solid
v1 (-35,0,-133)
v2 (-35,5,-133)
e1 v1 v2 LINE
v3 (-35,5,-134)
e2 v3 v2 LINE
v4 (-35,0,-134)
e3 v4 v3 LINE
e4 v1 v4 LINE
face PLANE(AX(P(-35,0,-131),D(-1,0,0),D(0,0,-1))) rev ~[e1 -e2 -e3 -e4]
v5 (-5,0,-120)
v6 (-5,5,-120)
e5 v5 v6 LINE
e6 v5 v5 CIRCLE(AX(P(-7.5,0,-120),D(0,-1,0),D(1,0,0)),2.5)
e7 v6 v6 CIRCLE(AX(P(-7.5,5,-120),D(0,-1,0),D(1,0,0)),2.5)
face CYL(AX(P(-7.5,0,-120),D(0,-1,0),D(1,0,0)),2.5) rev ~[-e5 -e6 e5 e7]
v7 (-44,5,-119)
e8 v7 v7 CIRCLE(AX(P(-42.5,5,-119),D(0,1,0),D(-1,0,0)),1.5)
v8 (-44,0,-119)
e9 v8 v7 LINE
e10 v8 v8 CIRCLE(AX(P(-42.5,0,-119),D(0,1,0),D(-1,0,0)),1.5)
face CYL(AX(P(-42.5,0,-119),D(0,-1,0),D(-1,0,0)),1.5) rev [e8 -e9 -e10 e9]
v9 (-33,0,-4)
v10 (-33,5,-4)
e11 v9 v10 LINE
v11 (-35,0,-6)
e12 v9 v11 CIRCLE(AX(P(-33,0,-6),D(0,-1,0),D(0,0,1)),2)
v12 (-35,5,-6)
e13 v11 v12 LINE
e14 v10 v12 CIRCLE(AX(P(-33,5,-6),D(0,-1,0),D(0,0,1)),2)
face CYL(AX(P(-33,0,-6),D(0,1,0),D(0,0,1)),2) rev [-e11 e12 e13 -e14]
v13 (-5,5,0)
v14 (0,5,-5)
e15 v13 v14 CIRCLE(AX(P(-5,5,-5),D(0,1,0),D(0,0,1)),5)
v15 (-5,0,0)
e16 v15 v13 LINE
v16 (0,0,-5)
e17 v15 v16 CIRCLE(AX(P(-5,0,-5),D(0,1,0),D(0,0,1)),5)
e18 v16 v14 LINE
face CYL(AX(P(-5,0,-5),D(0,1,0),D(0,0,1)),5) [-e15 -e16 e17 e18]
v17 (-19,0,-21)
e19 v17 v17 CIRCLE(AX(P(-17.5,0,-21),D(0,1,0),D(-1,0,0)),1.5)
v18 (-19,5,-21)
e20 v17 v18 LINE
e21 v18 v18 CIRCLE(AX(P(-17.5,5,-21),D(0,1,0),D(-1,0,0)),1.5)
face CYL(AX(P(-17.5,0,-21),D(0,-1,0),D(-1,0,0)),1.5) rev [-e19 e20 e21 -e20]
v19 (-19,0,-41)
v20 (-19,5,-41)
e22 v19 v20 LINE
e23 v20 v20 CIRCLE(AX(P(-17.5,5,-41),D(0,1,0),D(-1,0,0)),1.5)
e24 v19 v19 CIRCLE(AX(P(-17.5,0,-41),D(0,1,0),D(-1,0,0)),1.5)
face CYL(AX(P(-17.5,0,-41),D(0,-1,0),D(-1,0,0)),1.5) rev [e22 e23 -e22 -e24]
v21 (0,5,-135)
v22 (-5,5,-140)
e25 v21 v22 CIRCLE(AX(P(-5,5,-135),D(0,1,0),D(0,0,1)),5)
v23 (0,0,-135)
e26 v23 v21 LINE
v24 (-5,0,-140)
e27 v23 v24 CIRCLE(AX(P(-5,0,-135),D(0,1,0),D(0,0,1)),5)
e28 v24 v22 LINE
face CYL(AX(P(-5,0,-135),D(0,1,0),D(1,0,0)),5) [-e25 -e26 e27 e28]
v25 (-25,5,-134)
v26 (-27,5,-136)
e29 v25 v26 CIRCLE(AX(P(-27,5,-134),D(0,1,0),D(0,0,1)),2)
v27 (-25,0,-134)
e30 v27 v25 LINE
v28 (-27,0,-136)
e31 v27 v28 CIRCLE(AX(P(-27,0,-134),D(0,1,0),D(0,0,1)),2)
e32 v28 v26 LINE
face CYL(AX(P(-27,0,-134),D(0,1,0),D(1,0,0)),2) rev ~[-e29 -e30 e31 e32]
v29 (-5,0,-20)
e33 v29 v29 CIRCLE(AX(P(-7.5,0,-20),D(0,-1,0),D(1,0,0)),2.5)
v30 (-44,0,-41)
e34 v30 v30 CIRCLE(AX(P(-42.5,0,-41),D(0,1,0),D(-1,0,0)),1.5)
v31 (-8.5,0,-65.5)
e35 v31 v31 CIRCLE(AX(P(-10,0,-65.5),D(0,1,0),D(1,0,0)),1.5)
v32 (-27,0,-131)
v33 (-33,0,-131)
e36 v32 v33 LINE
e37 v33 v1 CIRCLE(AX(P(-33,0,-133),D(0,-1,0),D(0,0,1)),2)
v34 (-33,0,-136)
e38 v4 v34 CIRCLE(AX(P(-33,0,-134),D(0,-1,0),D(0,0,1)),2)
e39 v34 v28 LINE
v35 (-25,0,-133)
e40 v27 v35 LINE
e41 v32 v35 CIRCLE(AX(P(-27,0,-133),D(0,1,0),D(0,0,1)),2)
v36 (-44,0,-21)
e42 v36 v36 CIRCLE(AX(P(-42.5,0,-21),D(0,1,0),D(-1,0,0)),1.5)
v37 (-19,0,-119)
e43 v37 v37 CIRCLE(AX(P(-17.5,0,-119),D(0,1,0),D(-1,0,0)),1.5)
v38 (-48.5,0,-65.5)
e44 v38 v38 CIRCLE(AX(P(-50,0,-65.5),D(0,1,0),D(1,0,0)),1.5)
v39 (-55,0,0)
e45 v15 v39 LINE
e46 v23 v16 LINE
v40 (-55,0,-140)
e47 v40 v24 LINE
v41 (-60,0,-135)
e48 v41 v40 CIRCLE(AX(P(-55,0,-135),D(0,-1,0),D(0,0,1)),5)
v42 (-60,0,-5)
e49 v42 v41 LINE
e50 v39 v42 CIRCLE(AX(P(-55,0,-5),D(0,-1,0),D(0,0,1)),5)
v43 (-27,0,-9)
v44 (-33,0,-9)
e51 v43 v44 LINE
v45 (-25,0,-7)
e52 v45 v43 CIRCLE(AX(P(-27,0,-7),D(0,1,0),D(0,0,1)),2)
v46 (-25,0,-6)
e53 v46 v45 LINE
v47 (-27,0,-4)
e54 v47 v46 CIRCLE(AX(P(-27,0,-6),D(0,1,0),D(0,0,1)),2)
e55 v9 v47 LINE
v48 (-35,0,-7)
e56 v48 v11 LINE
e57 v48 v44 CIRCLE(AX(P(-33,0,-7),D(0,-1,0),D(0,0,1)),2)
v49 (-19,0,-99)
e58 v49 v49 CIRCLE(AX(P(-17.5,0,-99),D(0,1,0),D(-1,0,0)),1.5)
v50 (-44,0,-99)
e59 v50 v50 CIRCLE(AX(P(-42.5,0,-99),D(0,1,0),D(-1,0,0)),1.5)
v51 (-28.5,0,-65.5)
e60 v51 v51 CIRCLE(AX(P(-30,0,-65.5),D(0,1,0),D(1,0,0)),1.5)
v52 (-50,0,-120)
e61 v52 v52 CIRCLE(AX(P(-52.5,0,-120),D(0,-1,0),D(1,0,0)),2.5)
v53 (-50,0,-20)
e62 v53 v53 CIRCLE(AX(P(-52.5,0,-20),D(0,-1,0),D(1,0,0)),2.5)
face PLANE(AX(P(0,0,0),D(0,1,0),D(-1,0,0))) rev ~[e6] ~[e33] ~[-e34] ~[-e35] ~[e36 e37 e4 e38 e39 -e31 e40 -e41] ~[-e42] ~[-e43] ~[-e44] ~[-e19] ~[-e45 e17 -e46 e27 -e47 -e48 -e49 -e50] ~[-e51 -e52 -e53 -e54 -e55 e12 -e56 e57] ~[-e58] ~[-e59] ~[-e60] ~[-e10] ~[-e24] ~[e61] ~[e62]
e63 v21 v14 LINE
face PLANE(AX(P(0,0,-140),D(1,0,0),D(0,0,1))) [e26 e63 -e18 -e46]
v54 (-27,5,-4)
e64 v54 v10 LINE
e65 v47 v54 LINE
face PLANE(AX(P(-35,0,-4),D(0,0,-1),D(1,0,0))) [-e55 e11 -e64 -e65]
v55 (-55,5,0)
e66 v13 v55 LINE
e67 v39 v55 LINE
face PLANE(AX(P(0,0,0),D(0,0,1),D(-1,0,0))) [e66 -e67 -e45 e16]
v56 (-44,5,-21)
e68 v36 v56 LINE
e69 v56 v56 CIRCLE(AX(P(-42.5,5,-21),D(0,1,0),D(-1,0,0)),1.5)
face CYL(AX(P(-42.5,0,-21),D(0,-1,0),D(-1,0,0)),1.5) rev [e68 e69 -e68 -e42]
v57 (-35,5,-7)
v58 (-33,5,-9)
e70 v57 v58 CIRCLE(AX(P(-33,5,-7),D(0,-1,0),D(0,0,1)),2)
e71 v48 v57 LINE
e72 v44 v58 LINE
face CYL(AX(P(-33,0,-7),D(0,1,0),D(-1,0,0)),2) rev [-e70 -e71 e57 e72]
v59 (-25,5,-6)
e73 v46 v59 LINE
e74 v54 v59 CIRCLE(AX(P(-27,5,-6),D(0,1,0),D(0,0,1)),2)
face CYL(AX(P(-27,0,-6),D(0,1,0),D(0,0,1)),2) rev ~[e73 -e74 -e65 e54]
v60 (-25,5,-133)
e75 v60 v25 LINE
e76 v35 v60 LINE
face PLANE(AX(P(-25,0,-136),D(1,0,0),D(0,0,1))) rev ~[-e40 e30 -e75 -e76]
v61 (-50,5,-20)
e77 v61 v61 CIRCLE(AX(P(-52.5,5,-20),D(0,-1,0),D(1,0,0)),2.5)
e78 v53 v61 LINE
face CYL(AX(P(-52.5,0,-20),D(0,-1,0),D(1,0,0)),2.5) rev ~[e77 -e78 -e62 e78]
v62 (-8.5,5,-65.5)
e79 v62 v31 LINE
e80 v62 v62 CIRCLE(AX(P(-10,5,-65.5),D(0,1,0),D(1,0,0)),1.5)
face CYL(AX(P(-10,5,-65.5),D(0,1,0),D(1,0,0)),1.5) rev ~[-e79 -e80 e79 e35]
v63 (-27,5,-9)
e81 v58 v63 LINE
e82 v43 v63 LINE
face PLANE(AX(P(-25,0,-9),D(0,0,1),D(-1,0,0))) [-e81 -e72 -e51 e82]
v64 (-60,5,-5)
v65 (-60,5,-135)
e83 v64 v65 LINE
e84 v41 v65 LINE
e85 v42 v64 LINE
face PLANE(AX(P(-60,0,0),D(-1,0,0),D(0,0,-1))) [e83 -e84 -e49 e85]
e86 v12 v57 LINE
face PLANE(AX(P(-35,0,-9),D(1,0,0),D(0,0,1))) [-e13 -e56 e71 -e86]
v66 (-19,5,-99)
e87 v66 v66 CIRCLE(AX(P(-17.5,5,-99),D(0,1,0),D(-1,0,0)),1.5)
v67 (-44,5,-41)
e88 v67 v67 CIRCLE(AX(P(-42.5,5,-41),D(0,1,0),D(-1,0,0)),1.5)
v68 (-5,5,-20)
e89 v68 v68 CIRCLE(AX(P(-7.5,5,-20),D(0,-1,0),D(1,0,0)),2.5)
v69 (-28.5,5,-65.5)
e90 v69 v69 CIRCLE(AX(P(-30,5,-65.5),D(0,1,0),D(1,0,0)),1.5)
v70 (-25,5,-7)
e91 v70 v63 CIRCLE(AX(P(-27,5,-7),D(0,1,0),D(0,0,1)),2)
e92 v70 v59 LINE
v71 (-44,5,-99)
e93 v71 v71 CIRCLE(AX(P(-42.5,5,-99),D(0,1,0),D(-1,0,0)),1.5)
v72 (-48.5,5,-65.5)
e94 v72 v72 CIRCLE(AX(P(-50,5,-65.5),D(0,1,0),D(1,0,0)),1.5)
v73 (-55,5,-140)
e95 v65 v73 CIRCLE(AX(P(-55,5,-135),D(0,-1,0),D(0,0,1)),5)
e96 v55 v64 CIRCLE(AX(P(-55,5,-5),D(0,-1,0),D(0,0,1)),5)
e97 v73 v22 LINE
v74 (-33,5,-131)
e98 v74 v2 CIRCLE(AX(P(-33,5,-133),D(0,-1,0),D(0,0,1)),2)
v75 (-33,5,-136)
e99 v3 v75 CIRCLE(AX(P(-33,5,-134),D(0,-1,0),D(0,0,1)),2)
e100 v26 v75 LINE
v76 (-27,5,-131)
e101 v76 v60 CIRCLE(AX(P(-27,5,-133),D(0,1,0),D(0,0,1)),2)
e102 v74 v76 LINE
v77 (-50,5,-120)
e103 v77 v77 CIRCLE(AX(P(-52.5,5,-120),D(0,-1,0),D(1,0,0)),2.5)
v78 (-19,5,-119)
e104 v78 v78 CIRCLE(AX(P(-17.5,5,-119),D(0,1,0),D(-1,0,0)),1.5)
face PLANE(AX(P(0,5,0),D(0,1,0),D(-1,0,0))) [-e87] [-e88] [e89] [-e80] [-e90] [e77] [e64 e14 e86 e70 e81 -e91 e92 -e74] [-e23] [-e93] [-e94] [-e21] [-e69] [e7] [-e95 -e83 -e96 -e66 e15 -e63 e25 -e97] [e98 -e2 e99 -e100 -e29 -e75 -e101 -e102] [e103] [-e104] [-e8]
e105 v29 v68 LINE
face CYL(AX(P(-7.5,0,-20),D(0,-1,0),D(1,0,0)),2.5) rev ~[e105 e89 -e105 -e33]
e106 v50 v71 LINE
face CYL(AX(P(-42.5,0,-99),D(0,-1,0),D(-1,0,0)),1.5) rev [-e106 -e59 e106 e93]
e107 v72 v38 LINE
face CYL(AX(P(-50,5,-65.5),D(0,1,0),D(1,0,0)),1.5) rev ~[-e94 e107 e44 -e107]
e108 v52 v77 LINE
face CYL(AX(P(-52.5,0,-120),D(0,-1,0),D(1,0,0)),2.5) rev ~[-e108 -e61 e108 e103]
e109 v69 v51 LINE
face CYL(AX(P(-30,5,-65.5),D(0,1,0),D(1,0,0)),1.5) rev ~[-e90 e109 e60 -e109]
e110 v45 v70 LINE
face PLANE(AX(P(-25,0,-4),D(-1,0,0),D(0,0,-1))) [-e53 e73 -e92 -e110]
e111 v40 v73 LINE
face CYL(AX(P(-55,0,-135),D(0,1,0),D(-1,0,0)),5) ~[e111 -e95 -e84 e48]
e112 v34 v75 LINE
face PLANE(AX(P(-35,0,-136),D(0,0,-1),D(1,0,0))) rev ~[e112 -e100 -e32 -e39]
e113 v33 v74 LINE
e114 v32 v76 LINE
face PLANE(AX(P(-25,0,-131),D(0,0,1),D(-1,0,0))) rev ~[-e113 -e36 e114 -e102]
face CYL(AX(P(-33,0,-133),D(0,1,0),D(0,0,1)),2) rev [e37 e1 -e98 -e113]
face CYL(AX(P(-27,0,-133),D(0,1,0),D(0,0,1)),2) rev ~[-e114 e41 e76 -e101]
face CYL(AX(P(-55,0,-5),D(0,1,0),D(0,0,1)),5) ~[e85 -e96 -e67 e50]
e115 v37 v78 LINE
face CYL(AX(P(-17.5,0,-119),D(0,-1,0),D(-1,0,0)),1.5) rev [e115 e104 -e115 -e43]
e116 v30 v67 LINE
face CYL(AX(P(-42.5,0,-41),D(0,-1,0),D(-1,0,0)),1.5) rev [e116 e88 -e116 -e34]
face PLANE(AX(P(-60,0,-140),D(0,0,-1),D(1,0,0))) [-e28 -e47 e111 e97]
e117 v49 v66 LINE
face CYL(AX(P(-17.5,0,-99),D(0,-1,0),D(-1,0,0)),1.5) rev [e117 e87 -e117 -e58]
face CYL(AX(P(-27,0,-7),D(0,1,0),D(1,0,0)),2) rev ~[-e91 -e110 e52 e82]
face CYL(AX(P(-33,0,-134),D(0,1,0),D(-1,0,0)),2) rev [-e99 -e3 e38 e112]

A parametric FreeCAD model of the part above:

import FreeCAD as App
import Part
import Sketcher


def edges_at(feature, points):
    """Names of the edges that pass closest to the given points."""
    edges = feature.Shape.Edges
    near = lambda p: min(range(len(edges)), key=lambda i: edges[i].distToShape(Part.Vertex(*p))[0])
    return sorted({f"Edge{near(p) + 1}" for p in points})

doc = App.newDocument("Part")
body = doc.addObject("PartDesign::Body", "Body")

sketch1 = body.newObject("Sketcher::SketchObject", "Sketch")
sketch1.AttachmentSupport = (doc.getObject("XZ_Plane"), [""])
sketch1.MapMode = "FlatFace"
sketch1.addGeometry([
    Part.LineSegment(App.Vector(-60, 0, 0), App.Vector(0, 0, 0)),
    Part.LineSegment(App.Vector(0, 0, 0), App.Vector(0, -140, 0)),
    Part.LineSegment(App.Vector(0, -140, 0), App.Vector(-60, -140, 0)),
    Part.LineSegment(App.Vector(-60, -140, 0), App.Vector(-60, 0, 0)),
    Part.Circle(App.Vector(-17.5, -119, 0), App.Vector(0, 0, 1), 1.5),
    Part.Circle(App.Vector(-17.5, -99, 0), App.Vector(0, 0, 1), 1.5),
    Part.Circle(App.Vector(-42.5, -119, 0), App.Vector(0, 0, 1), 1.5),
    Part.Circle(App.Vector(-42.5, -99, 0), App.Vector(0, 0, 1), 1.5),
    Part.Circle(App.Vector(-17.5, -41, 0), App.Vector(0, 0, 1), 1.5),
    Part.Circle(App.Vector(-17.5, -21, 0), App.Vector(0, 0, 1), 1.5),
    Part.Circle(App.Vector(-42.5, -41, 0), App.Vector(0, 0, 1), 1.5),
    Part.Circle(App.Vector(-42.5, -21, 0), App.Vector(0, 0, 1), 1.5),
], False)
sketch1.addConstraint([
    Sketcher.Constraint("Coincident", 0, 2, 1, 1),
    Sketcher.Constraint("Coincident", 1, 2, 2, 1),
    Sketcher.Constraint("Coincident", 2, 2, 3, 1),
    Sketcher.Constraint("Coincident", 3, 2, 0, 1),
    Sketcher.Constraint("Horizontal", 0),
    Sketcher.Constraint("Vertical", 1),
    Sketcher.Constraint("Horizontal", 2),
    Sketcher.Constraint("Vertical", 3),
    Sketcher.Constraint("Coincident", 0, 2, -1, 1),
    Sketcher.Constraint("Equal", 4, 5),
    Sketcher.Constraint("Equal", 5, 6),
    Sketcher.Constraint("Equal", 6, 7),
    Sketcher.Constraint("Equal", 7, 8),
    Sketcher.Constraint("Equal", 8, 9),
    Sketcher.Constraint("Equal", 9, 10),
    Sketcher.Constraint("Equal", 10, 11),
    Sketcher.Constraint("Horizontal", 4, 3, 6, 3),
    Sketcher.Constraint("Horizontal", 5, 3, 7, 3),
    Sketcher.Constraint("Horizontal", 8, 3, 10, 3),
    Sketcher.Constraint("Horizontal", 9, 3, 11, 3),
    Sketcher.Constraint("Vertical", 4, 3, 5, 3),
    Sketcher.Constraint("Vertical", 6, 3, 7, 3),
    Sketcher.Constraint("Vertical", 5, 3, 8, 3),
    Sketcher.Constraint("Vertical", 8, 3, 9, 3),
    Sketcher.Constraint("Vertical", 7, 3, 10, 3),
    Sketcher.Constraint("Vertical", 10, 3, 11, 3),
    Sketcher.Constraint("Diameter", 4, 3.0),
    Sketcher.Constraint("DistanceX", 0, 1, 0, 2, 60.0),
    Sketcher.Constraint("DistanceY", 1, 2, 1, 1, 140.0),
    Sketcher.Constraint("DistanceY", 9, 3, -1, 1, 21.0),
    Sketcher.Constraint("DistanceY", 4, 3, 5, 3, 20.0),
    Sketcher.Constraint("DistanceY", 8, 3, 9, 3, 20.0),
    Sketcher.Constraint("DistanceY", 1, 2, 4, 3, 21.0),
    Sketcher.Constraint("DistanceX", 6, 3, 4, 3, 25.0),
    Sketcher.Constraint("DistanceX", 4, 3, -1, 1, 17.5),
])
pad1 = body.newObject("PartDesign::Pad", "Pad")
pad1.Profile = sketch1
pad1.Length = 5
pad1.Reversed = True

sketch2 = body.newObject("Sketcher::SketchObject", "Sketch001")
sketch2.AttachmentSupport = (doc.getObject("XZ_Plane"), [""])
sketch2.MapMode = "FlatFace"
sketch2.addGeometry([
    Part.Circle(App.Vector(-52.5, -120, 0), App.Vector(0, 0, 1), 2.5),
    Part.Circle(App.Vector(-52.5, -20, 0), App.Vector(0, 0, 1), 2.5),
    Part.Circle(App.Vector(-7.5, -120, 0), App.Vector(0, 0, 1), 2.5),
    Part.Circle(App.Vector(-7.5, -20, 0), App.Vector(0, 0, 1), 2.5),
], False)
sketch2.addConstraint([
    Sketcher.Constraint("Equal", 0, 1),
    Sketcher.Constraint("Equal", 1, 2),
    Sketcher.Constraint("Equal", 2, 3),
    Sketcher.Constraint("Horizontal", 0, 3, 2, 3),
    Sketcher.Constraint("Horizontal", 1, 3, 3, 3),
    Sketcher.Constraint("Vertical", 0, 3, 1, 3),
    Sketcher.Constraint("Vertical", 2, 3, 3, 3),
    Sketcher.Constraint("Diameter", 0, 5.0),
    Sketcher.Constraint("DistanceY", 1, 3, -1, 1, 20.0),
    Sketcher.Constraint("DistanceX", 2, 3, -1, 1, 7.5),
    Sketcher.Constraint("DistanceY", 0, 3, -1, 1, 120.0),
    Sketcher.Constraint("DistanceX", 0, 3, 2, 3, 45.0),
])
pocket1 = body.newObject("PartDesign::Pocket", "Pocket")
pocket1.Profile = sketch2
pocket1.Length = 10

sketch3 = body.newObject("Sketcher::SketchObject", "Sketch002")
sketch3.AttachmentSupport = (doc.getObject("XZ_Plane"), [""])
sketch3.MapMode = "FlatFace"
sketch3.addGeometry([
    Part.LineSegment(App.Vector(-35, -131, 0), App.Vector(-35, -136, 0)),
    Part.LineSegment(App.Vector(-35, -136, 0), App.Vector(-25, -136, 0)),
    Part.LineSegment(App.Vector(-25, -136, 0), App.Vector(-25, -131, 0)),
    Part.LineSegment(App.Vector(-25, -131, 0), App.Vector(-35, -131, 0)),
    Part.LineSegment(App.Vector(-25, -4, 0), App.Vector(-35, -4, 0)),
    Part.LineSegment(App.Vector(-35, -4, 0), App.Vector(-35, -9, 0)),
    Part.LineSegment(App.Vector(-35, -9, 0), App.Vector(-25, -9, 0)),
    Part.LineSegment(App.Vector(-25, -9, 0), App.Vector(-25, -4, 0)),
], False)
sketch3.addConstraint([
    Sketcher.Constraint("Coincident", 0, 2, 1, 1),
    Sketcher.Constraint("Coincident", 1, 2, 2, 1),
    Sketcher.Constraint("Coincident", 2, 2, 3, 1),
    Sketcher.Constraint("Coincident", 3, 2, 0, 1),
    Sketcher.Constraint("Coincident", 4, 2, 5, 1),
    Sketcher.Constraint("Coincident", 5, 2, 6, 1),
    Sketcher.Constraint("Coincident", 6, 2, 7, 1),
    Sketcher.Constraint("Coincident", 7, 2, 4, 1),
    Sketcher.Constraint("Vertical", 0),
    Sketcher.Constraint("Horizontal", 1),
    Sketcher.Constraint("Vertical", 2),
    Sketcher.Constraint("Horizontal", 3),
    Sketcher.Constraint("Horizontal", 4),
    Sketcher.Constraint("Vertical", 5),
    Sketcher.Constraint("Horizontal", 6),
    Sketcher.Constraint("Vertical", 7),
    Sketcher.Constraint("Vertical", 3, 2, 4, 2),
    Sketcher.Constraint("Vertical", 2, 2, 6, 2),
    Sketcher.Constraint("Equal", 2, 5),
    Sketcher.Constraint("DistanceX", 1, 1, 1, 2, 10.0),
    Sketcher.Constraint("DistanceY", 0, 2, 0, 1, 5.0),
    Sketcher.Constraint("DistanceX", 1, 2, -1, 1, 25.0),
    Sketcher.Constraint("DistanceY", 4, 2, -1, 1, 4.0),
    Sketcher.Constraint("DistanceY", 0, 2, -1, 1, 136.0),
])
pocket2 = body.newObject("PartDesign::Pocket", "Pocket001")
pocket2.Profile = sketch3
pocket2.Length = 10
doc.recompute()

fillet = body.newObject("PartDesign::Fillet", "Fillet")
fillet.Base = (pocket2, edges_at(pocket2, [
    (0, 2.5, -140),
    (-60, 2.5, -140),
    (-60, 2.5, 0),
    (0, 2.5, 0),
]))
fillet.Radius = 5

sketch4 = body.newObject("Sketcher::SketchObject", "Sketch003")
sketch4.AttachmentSupport = (doc.getObject("XZ_Plane"), [""])
sketch4.MapMode = "FlatFace"
sketch4.AttachmentOffset = App.Placement(App.Vector(0, 0, -5), App.Rotation())
sketch4.addGeometry([
    Part.Circle(App.Vector(-10, -65.5, 0), App.Vector(0, 0, 1), 1.5),
    Part.Circle(App.Vector(-30, -65.5, 0), App.Vector(0, 0, 1), 1.5),
    Part.Circle(App.Vector(-50, -65.5, 0), App.Vector(0, 0, 1), 1.5),
], False)
sketch4.addConstraint([
    Sketcher.Constraint("Equal", 0, 1),
    Sketcher.Constraint("Equal", 1, 2),
    Sketcher.Constraint("Horizontal", 0, 3, 1, 3),
    Sketcher.Constraint("Horizontal", 1, 3, 2, 3),
    Sketcher.Constraint("Diameter", 0, 3.0),
    Sketcher.Constraint("DistanceX", 0, 3, -1, 1, 10.0),
    Sketcher.Constraint("DistanceX", 1, 3, -1, 1, 30.0),
    Sketcher.Constraint("DistanceX", 2, 3, -1, 1, 50.0),
    Sketcher.Constraint("DistanceY", 0, 3, -1, 1, 65.5),
])
pocket3 = body.newObject("PartDesign::Pocket", "Pocket002")
pocket3.Profile = sketch4
pocket3.Length = 10
pocket3.Reversed = True
doc.recompute()

fillet2 = body.newObject("PartDesign::Fillet", "Fillet001")
fillet2.Base = (pocket3, edges_at(pocket3, [
    (-25, 2.5, -131),
    (-25, 2.5, -136),
    (-35, 2.5, -136),
    (-35, 2.5, -131),
    (-25, 2.5, -9),
    (-25, 2.5, -4),
    (-35, 2.5, -4),
    (-35, 2.5, -9),
]))
fillet2.Radius = 2

doc.recompute()
